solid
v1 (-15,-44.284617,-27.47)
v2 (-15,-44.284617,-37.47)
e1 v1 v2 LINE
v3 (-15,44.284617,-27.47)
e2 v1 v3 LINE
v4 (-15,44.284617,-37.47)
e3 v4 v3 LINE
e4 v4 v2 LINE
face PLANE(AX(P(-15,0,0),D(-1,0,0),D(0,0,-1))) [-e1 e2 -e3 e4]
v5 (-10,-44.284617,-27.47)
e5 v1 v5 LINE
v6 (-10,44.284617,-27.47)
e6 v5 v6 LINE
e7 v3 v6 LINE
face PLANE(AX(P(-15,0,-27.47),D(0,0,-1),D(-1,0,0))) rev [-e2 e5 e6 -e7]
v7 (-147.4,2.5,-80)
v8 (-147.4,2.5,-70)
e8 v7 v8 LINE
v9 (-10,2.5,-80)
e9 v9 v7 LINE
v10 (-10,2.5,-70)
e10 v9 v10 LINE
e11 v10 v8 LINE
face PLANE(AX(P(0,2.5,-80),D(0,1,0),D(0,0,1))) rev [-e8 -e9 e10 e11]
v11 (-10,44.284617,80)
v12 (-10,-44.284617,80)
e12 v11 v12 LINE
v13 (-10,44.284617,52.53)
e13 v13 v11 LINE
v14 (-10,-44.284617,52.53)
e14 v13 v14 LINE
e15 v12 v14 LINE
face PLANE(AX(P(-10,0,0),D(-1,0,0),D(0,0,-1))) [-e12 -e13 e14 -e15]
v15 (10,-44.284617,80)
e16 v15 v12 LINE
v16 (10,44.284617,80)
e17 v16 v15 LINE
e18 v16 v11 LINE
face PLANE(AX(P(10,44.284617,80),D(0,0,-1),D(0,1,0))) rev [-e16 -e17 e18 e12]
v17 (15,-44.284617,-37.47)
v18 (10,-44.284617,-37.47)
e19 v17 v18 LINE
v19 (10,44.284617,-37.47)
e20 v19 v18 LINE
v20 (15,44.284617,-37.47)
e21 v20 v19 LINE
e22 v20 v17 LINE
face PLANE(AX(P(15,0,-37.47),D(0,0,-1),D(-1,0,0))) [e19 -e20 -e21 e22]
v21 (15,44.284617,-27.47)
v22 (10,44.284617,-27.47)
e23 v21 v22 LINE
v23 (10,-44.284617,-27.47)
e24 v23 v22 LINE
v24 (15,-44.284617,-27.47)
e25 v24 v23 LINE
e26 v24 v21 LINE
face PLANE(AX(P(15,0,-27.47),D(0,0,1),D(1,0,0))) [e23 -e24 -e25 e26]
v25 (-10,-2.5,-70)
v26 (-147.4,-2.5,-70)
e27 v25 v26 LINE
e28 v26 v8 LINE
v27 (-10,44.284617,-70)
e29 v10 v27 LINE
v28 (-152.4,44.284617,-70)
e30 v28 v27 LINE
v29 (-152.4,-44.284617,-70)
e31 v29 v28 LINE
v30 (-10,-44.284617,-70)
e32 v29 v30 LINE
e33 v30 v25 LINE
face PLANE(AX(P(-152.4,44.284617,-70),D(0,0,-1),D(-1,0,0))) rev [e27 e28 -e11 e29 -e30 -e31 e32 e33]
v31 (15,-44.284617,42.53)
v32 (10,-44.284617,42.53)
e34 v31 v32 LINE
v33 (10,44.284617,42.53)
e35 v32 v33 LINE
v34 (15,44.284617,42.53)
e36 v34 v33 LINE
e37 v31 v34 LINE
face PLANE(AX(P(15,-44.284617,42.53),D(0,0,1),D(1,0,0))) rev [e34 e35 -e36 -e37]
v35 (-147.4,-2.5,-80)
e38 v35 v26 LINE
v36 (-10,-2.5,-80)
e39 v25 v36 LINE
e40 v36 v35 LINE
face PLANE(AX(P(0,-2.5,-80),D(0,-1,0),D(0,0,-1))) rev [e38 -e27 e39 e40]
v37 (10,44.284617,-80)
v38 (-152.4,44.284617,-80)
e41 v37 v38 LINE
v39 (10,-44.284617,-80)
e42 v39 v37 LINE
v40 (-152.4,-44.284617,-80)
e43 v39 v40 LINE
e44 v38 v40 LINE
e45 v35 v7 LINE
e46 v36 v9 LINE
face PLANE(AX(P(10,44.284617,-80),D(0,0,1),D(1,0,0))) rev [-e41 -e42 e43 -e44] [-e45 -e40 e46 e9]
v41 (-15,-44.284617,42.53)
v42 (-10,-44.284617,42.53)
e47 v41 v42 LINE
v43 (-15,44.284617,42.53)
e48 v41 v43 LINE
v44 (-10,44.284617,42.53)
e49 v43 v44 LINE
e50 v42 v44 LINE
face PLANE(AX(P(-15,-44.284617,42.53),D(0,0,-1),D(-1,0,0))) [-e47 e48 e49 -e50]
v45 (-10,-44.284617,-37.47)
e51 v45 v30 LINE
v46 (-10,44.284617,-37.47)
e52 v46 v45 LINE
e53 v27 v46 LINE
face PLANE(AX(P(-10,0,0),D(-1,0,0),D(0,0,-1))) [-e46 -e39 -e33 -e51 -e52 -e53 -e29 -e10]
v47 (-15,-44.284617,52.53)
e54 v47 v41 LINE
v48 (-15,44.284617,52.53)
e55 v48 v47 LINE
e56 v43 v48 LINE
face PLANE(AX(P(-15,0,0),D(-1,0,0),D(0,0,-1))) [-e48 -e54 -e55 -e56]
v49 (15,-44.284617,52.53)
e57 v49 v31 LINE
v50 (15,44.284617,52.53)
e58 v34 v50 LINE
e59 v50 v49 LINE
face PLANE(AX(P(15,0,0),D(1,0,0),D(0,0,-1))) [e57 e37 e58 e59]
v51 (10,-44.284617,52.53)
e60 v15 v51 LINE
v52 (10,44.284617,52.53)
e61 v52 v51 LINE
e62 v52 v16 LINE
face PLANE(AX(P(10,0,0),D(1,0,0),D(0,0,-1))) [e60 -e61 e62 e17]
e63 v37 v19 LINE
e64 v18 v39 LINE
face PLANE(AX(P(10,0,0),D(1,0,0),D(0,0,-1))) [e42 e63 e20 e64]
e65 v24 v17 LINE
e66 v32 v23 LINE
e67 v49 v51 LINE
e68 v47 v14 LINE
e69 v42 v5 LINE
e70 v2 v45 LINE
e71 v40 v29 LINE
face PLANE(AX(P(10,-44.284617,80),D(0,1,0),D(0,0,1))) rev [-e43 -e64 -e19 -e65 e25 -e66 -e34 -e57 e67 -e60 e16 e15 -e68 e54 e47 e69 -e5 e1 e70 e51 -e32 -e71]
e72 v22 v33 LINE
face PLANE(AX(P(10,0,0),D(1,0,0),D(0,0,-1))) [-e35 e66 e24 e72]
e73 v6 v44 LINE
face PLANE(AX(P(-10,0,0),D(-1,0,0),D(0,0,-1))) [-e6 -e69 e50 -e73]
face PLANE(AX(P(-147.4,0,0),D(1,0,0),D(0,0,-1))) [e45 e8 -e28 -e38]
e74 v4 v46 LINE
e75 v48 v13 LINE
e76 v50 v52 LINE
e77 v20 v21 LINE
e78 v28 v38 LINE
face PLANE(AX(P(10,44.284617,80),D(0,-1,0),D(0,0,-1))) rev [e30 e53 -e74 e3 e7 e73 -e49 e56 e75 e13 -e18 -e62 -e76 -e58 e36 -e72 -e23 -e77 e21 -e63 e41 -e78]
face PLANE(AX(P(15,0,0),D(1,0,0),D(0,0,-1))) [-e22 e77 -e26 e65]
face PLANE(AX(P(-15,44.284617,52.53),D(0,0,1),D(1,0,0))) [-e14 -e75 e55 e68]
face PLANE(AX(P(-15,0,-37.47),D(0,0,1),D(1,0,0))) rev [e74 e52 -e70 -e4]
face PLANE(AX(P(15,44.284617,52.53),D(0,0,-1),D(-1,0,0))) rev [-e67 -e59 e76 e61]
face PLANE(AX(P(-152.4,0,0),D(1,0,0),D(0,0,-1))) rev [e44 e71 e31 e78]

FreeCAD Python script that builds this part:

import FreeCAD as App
import Part
import Sketcher

V = App.Vector

doc = App.newDocument("Part")
params = doc.addObject("Spreadsheet::Sheet", "Params")
for row, (alias, value) in enumerate([
    ("sketch1_height", "160 mm"),
    ("pad1_length", "10 mm"),
    ("sketch2_height", "10 mm"),
    ("pad2_length", "152.4 mm"),
    ("sketch3_width", "5 mm"),
    ("sketch3_height", "10 mm"),
    ("pocket1_length", "152.4 mm"),
    ("sketch4_width", "5 mm"),
    ("sketch4_height", "10 mm"),
    ("pad3_length", "5 mm"),
    ("sketch5_height", "10 mm"),
    ("pad4_length", "5 mm"),
], start=1):
    params.set(f"A{row}", alias)
    params.set(f"B{row}", "=" + value)
    params.setAlias(f"B{row}", alias)

body = doc.addObject("PartDesign::Body", "Body")

# Sketch on YZ plane
sketch1 = body.newObject("Sketcher::SketchObject", "Sketch")
sketch1.AttachmentSupport = (doc.getObject("YZ_Plane"), [""])
sketch1.MapMode = "FlatFace"
sketch1.addGeometry([
    Part.LineSegment(V(44, 80, 0), V(-44, 80, 0)),
    Part.LineSegment(V(-44, 80, 0), V(-44, -80, 0)),
    Part.LineSegment(V(-44, -80, 0), V(44, -80, 0)),
    Part.LineSegment(V(44, -80, 0), V(44, 80, 0)),
], False)
sketch1.addConstraint([
    Sketcher.Constraint("Coincident", 0, 2, 1, 1),
    Sketcher.Constraint("Coincident", 1, 2, 2, 1),
    Sketcher.Constraint("Coincident", 2, 2, 3, 1),
    Sketcher.Constraint("Coincident", 3, 2, 0, 1),
    Sketcher.Constraint("Horizontal", 0),
    Sketcher.Constraint("Vertical", 1),
    Sketcher.Constraint("Horizontal", 2),
    Sketcher.Constraint("Vertical", 3),
    Sketcher.Constraint("Symmetric", 0, 2, 2, 2, -1, 1),
    Sketcher.Constraint("DistanceY", 1, 2, 1, 1, 160.0),
    Sketcher.Constraint("DistanceX", 0, 2, 0, 1, 88.569233),
])
sketch1.setExpression("Constraints[9]", "Params.sketch1_height")
pad1 = body.newObject("PartDesign::Pad", "Pad")
pad1.Profile = sketch1
pad1.setExpression("Length", "Params.pad1_length")

# Sketch on YZ plane
sketch2 = body.newObject("Sketcher::SketchObject", "Sketch001")
sketch2.AttachmentSupport = (doc.getObject("YZ_Plane"), [""])
sketch2.MapMode = "FlatFace"
sketch2.addGeometry([
    Part.LineSegment(V(44, -80, 0), V(-44, -80, 0)),
    Part.LineSegment(V(-44, -80, 0), V(-44, -70, 0)),
    Part.LineSegment(V(-44, -70, 0), V(44, -70, 0)),
    Part.LineSegment(V(44, -70, 0), V(44, -80, 0)),
], False)
sketch2.addConstraint([
    Sketcher.Constraint("Coincident", 0, 2, 1, 1),
    Sketcher.Constraint("Coincident", 1, 2, 2, 1),
    Sketcher.Constraint("Coincident", 2, 2, 3, 1),
    Sketcher.Constraint("Coincident", 3, 2, 0, 1),
    Sketcher.Constraint("Horizontal", 0),
    Sketcher.Constraint("Vertical", 1),
    Sketcher.Constraint("Horizontal", 2),
    Sketcher.Constraint("Vertical", 3),
    Sketcher.Constraint("DistanceY", 1, 1, 1, 2, 10.0),
    Sketcher.Constraint("DistanceY", 0, 2, -1, 1, 80.0),
    Sketcher.Constraint("DistanceX", 0, 2, 0, 1, 88.569233),
    Sketcher.Constraint("DistanceX", 0, 2, -1, 1, 44.284617),
])
sketch2.setExpression("Constraints[8]", "Params.sketch2_height")
pad2 = body.newObject("PartDesign::Pad", "Pad001")
pad2.Profile = sketch2
pad2.setExpression("Length", "Params.pad2_length")
pad2.Reversed = True

# Sketch on YZ plane
sketch3 = body.newObject("Sketcher::SketchObject", "Sketch002")
sketch3.AttachmentSupport = (doc.getObject("YZ_Plane"), [""])
sketch3.MapMode = "FlatFace"
sketch3.AttachmentOffset = App.Placement(V(0, 0, -152.4), App.Rotation())
sketch3.addGeometry([
    Part.LineSegment(V(2, -80, 0), V(-2, -80, 0)),
    Part.LineSegment(V(-2, -80, 0), V(-2, -70, 0)),
    Part.LineSegment(V(-2, -70, 0), V(2, -70, 0)),
    Part.LineSegment(V(2, -70, 0), V(2, -80, 0)),
], False)
sketch3.addConstraint([
    Sketcher.Constraint("Coincident", 0, 2, 1, 1),
    Sketcher.Constraint("Coincident", 1, 2, 2, 1),
    Sketcher.Constraint("Coincident", 2, 2, 3, 1),
    Sketcher.Constraint("Coincident", 3, 2, 0, 1),
    Sketcher.Constraint("Horizontal", 0),
    Sketcher.Constraint("Vertical", 1),
    Sketcher.Constraint("Horizontal", 2),
    Sketcher.Constraint("Vertical", 3),
    Sketcher.Constraint("DistanceX", 0, 2, 0, 1, 5.0),
    Sketcher.Constraint("DistanceY", 1, 1, 1, 2, 10.0),
    Sketcher.Constraint("DistanceY", 0, 2, -1, 1, 80.0),
    Sketcher.Constraint("DistanceX", 0, 2, -1, 1, 2.5),
])
sketch3.setExpression("Constraints[8]", "Params.sketch3_width")
sketch3.setExpression("Constraints[9]", "Params.sketch3_height")
pocket1 = body.newObject("PartDesign::Pocket", "Pocket")
pocket1.Profile = sketch3
pocket1.setExpression("Length", "Params.pocket1_length")
pocket1.Reversed = True

# Sketch on YZ plane
sketch4 = body.newObject("Sketcher::SketchObject", "Sketch003")
sketch4.AttachmentSupport = (doc.getObject("YZ_Plane"), [""])
sketch4.MapMode = "FlatFace"
sketch4.AttachmentOffset = App.Placement(V(0, 0, -152.4), App.Rotation())
sketch4.addGeometry([
    Part.LineSegment(V(2, -80, 0), V(-2, -80, 0)),
    Part.LineSegment(V(-2, -80, 0), V(-2, -70, 0)),
    Part.LineSegment(V(-2, -70, 0), V(2, -70, 0)),
    Part.LineSegment(V(2, -70, 0), V(2, -80, 0)),
], False)
sketch4.addConstraint([
    Sketcher.Constraint("Coincident", 0, 2, 1, 1),
    Sketcher.Constraint("Coincident", 1, 2, 2, 1),
    Sketcher.Constraint("Coincident", 2, 2, 3, 1),
    Sketcher.Constraint("Coincident", 3, 2, 0, 1),
    Sketcher.Constraint("Horizontal", 0),
    Sketcher.Constraint("Vertical", 1),
    Sketcher.Constraint("Horizontal", 2),
    Sketcher.Constraint("Vertical", 3),
    Sketcher.Constraint("DistanceX", 0, 2, 0, 1, 5.0),
    Sketcher.Constraint("DistanceY", 1, 1, 1, 2, 10.0),
    Sketcher.Constraint("DistanceY", 0, 2, -1, 1, 80.0),
    Sketcher.Constraint("DistanceX", 0, 2, -1, 1, 2.5),
])
sketch4.setExpression("Constraints[8]", "Params.sketch4_width")
sketch4.setExpression("Constraints[9]", "Params.sketch4_height")
pad3 = body.newObject("PartDesign::Pad", "Pad002")
pad3.Profile = sketch4
pad3.setExpression("Length", "Params.pad3_length")

# Sketch on YZ plane
sketch5 = body.newObject("Sketcher::SketchObject", "Sketch004")
sketch5.AttachmentSupport = (doc.getObject("YZ_Plane"), [""])
sketch5.MapMode = "FlatFace"
sketch5.AttachmentOffset = App.Placement(V(0, 0, 10), App.Rotation())
sketch5.addGeometry([
    Part.LineSegment(V(44, -27, 0), V(-44, -27, 0)),  # 0
    Part.LineSegment(V(-44, -27, 0), V(-44, -37, 0)),  # 1
    Part.LineSegment(V(-44, -37, 0), V(44, -37, 0)),  # 2
    Part.LineSegment(V(44, -37, 0), V(44, -27, 0)),  # 3
    Part.LineSegment(V(44, 53, 0), V(-44, 53, 0)),  # 4
    Part.LineSegment(V(-44, 53, 0), V(-44, 43, 0)),  # 5
    Part.LineSegment(V(-44, 43, 0), V(44, 43, 0)),  # 6
    Part.LineSegment(V(44, 43, 0), V(44, 53, 0)),  # 7
], False)
sketch5.addConstraint([
    Sketcher.Constraint("Coincident", 0, 2, 1, 1),
    Sketcher.Constraint("Coincident", 1, 2, 2, 1),
    Sketcher.Constraint("Coincident", 2, 2, 3, 1),
    Sketcher.Constraint("Coincident", 3, 2, 0, 1),
    Sketcher.Constraint("Coincident", 4, 2, 5, 1),
    Sketcher.Constraint("Coincident", 5, 2, 6, 1),
    Sketcher.Constraint("Coincident", 6, 2, 7, 1),
    Sketcher.Constraint("Coincident", 7, 2, 4, 1),
    Sketcher.Constraint("Horizontal", 0),
    Sketcher.Constraint("Vertical", 1),
    Sketcher.Constraint("Horizontal", 2),
    Sketcher.Constraint("Vertical", 3),
    Sketcher.Constraint("Horizontal", 4),
    Sketcher.Constraint("Vertical", 5),
    Sketcher.Constraint("Horizontal", 6),
    Sketcher.Constraint("Vertical", 7),
    Sketcher.Constraint("Vertical", 1, 2, 4, 2),
    Sketcher.Constraint("Vertical", 3, 2, 6, 2),
    Sketcher.Constraint("Equal", 3, 5),
    Sketcher.Constraint("DistanceY", 1, 2, 1, 1, 10.0),
    Sketcher.Constraint("DistanceY", 0, 2, 4, 2, 80.0),
    Sketcher.Constraint("DistanceY", 0, 2, -1, 1, 27.47),
    Sketcher.Constraint("DistanceX", 0, 2, 0, 1, 88.569233),
    Sketcher.Constraint("DistanceX", 0, 2, -1, 1, 44.284617),
])
sketch5.setExpression("Constraints[19]", "Params.sketch5_height")
pad4 = body.newObject("PartDesign::Pad", "Pad003")
pad4.Profile = sketch5
pad4.setExpression("Length", "Params.pad4_length")
doc.recompute()

mirrored = body.newObject("PartDesign::Mirrored", "Mirrored")
mirrored.Originals = [pad1, pad4]
mirrored.MirrorPlane = (doc.getObject("YZ_Plane"), [""])
body.Tip = mirrored

doc.recompute()
